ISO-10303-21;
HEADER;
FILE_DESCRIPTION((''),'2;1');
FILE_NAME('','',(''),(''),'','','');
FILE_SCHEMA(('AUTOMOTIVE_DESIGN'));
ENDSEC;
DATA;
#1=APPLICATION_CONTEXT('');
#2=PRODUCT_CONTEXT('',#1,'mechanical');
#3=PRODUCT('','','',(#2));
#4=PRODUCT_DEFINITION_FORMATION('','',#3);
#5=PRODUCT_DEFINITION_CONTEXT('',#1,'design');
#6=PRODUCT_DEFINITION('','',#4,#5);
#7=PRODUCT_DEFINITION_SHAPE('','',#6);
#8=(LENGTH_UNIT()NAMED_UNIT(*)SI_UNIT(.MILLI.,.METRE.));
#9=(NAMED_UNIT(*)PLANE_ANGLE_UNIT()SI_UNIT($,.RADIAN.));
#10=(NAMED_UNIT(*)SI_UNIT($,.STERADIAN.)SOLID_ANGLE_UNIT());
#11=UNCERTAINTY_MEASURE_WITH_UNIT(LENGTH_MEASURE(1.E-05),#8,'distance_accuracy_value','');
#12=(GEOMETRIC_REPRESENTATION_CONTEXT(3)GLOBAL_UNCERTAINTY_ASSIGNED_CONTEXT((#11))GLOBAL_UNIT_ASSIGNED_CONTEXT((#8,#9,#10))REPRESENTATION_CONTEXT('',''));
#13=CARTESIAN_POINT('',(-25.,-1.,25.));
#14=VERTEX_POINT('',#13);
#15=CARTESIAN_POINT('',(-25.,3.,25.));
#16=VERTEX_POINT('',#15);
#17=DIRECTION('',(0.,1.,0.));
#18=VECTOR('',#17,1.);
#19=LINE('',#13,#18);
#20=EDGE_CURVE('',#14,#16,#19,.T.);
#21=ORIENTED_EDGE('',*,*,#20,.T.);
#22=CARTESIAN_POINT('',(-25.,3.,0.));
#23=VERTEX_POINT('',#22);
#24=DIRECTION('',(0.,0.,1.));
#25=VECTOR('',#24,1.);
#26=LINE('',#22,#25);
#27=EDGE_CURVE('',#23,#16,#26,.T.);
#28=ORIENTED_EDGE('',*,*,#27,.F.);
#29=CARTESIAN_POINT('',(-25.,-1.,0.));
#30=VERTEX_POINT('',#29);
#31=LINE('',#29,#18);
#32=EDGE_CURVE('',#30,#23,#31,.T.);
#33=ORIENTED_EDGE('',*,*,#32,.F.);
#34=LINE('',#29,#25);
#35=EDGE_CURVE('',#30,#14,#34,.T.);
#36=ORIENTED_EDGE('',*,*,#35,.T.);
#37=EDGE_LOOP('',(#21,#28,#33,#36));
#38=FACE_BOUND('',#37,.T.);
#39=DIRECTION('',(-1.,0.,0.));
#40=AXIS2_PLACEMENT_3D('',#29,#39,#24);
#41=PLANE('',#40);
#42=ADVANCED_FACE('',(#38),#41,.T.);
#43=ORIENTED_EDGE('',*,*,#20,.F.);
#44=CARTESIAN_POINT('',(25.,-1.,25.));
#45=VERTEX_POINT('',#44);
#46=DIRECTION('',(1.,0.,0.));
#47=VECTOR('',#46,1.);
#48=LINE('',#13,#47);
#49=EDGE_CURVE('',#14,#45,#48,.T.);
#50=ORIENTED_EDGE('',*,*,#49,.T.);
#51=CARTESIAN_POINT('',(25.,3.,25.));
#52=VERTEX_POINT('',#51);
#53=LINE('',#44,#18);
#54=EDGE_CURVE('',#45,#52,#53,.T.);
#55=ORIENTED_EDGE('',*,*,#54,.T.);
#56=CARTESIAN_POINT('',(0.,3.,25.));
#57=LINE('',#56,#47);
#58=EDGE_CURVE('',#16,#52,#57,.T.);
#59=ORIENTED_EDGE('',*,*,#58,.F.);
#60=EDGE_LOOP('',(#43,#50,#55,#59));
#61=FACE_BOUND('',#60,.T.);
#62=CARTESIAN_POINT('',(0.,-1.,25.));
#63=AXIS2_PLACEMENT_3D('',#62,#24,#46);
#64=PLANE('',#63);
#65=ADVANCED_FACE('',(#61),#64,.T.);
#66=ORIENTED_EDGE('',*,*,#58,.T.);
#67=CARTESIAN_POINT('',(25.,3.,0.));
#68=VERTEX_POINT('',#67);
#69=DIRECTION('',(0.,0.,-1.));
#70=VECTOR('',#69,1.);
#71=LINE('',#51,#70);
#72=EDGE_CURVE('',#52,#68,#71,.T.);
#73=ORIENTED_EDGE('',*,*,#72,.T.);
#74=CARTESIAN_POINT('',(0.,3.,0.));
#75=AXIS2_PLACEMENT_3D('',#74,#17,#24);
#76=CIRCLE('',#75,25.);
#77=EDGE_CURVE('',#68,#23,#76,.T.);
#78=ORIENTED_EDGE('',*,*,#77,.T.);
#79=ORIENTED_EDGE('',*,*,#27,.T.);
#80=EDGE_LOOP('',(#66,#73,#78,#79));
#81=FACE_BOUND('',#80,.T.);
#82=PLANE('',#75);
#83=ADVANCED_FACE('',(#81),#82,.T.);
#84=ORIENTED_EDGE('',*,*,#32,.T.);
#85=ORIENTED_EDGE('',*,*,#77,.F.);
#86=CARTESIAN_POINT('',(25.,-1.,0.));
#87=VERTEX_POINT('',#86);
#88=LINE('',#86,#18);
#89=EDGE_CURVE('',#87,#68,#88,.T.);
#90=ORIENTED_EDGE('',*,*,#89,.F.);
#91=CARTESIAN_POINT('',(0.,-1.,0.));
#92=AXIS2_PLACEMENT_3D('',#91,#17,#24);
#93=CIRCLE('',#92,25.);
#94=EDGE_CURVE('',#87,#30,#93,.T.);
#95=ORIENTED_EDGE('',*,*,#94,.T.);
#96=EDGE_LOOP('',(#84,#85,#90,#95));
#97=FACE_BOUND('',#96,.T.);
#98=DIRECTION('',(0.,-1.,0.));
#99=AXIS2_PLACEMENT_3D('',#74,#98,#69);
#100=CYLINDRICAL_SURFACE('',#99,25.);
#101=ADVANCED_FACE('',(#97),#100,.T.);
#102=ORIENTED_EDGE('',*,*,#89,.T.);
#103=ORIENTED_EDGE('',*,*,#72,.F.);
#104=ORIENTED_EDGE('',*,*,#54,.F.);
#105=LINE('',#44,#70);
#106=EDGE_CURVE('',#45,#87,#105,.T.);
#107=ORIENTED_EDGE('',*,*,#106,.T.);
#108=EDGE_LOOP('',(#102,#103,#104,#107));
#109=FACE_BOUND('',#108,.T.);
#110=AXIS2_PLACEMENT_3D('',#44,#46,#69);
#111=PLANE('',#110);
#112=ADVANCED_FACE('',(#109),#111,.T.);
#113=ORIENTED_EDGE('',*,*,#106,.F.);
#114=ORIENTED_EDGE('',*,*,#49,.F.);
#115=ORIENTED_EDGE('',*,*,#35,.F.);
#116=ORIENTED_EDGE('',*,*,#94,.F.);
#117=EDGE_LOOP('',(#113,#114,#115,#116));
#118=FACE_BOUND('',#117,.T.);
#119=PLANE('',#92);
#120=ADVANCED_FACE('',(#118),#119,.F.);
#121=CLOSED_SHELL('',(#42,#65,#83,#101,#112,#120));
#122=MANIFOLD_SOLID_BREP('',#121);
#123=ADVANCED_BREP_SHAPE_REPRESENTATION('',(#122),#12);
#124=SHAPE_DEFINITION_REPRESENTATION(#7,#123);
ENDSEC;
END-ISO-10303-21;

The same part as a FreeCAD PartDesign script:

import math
import FreeCAD as App
import Part
import Sketcher

doc = App.newDocument("Part")
body = doc.addObject("PartDesign::Body", "Body")

# Sketch on XZ plane
sketch1 = body.newObject("Sketcher::SketchObject", "Sketch")
sketch1.AttachmentSupport = (doc.getObject("XZ_Plane"), [""])
sketch1.MapMode = "FlatFace"
sketch1.addGeometry(Part.Circle(App.Vector(0, 0, 0), App.Vector(0, 0, 1), 25), False)
sketch1.addConstraint([
    Sketcher.Constraint("Coincident", 0, 3, -1, 1),
    Sketcher.Constraint("Diameter", 0, 50.0),
])
pad1 = body.newObject("PartDesign::Pad", "Pad")
pad1.Profile = sketch1
pad1.Length = 3
pad1.Reversed = True

# Sketch on XZ plane
sketch2 = body.newObject("Sketcher::SketchObject", "Sketch001")
sketch2.AttachmentSupport = (doc.getObject("XZ_Plane"), [""])
sketch2.MapMode = "FlatFace"
sketch2.AttachmentOffset = App.Placement(App.Vector(0, 0, 1), App.Rotation())
sketch2.addGeometry([
    Part.LineSegment(App.Vector(25, 25, 0), App.Vector(25, 0, 0)),
    Part.ArcOfCircle(Part.Circle(App.Vector(0, 0, 0), App.Vector(0, 0, 1), 25), math.radians(180), math.radians(360)),
    Part.LineSegment(App.Vector(-25, 0, 0), App.Vector(-25, 25, 0)),
    Part.LineSegment(App.Vector(-25, 25, 0), App.Vector(25, 25, 0)),
], False)
sketch2.addConstraint([
    Sketcher.Constraint("Tangent", 0, 2, 1, 2),
    Sketcher.Constraint("Tangent", 1, 1, 2, 1),
    Sketcher.Constraint("Coincident", 2, 2, 3, 1),
    Sketcher.Constraint("Coincident", 3, 2, 0, 1),
    Sketcher.Constraint("Vertical", 0),
    Sketcher.Constraint("Vertical", 2),
    Sketcher.Constraint("Horizontal", 3),
    Sketcher.Constraint("Coincident", 1, 3, -1, 1),
    Sketcher.Constraint("Radius", 1, 25.0),
    Sketcher.Constraint("DistanceY", 0, 2, 0, 1, 25.0),
])
pad2 = body.newObject("PartDesign::Pad", "Pad001")
pad2.Profile = sketch2
pad2.Length = 4
pad2.Reversed = True

doc.recompute()
